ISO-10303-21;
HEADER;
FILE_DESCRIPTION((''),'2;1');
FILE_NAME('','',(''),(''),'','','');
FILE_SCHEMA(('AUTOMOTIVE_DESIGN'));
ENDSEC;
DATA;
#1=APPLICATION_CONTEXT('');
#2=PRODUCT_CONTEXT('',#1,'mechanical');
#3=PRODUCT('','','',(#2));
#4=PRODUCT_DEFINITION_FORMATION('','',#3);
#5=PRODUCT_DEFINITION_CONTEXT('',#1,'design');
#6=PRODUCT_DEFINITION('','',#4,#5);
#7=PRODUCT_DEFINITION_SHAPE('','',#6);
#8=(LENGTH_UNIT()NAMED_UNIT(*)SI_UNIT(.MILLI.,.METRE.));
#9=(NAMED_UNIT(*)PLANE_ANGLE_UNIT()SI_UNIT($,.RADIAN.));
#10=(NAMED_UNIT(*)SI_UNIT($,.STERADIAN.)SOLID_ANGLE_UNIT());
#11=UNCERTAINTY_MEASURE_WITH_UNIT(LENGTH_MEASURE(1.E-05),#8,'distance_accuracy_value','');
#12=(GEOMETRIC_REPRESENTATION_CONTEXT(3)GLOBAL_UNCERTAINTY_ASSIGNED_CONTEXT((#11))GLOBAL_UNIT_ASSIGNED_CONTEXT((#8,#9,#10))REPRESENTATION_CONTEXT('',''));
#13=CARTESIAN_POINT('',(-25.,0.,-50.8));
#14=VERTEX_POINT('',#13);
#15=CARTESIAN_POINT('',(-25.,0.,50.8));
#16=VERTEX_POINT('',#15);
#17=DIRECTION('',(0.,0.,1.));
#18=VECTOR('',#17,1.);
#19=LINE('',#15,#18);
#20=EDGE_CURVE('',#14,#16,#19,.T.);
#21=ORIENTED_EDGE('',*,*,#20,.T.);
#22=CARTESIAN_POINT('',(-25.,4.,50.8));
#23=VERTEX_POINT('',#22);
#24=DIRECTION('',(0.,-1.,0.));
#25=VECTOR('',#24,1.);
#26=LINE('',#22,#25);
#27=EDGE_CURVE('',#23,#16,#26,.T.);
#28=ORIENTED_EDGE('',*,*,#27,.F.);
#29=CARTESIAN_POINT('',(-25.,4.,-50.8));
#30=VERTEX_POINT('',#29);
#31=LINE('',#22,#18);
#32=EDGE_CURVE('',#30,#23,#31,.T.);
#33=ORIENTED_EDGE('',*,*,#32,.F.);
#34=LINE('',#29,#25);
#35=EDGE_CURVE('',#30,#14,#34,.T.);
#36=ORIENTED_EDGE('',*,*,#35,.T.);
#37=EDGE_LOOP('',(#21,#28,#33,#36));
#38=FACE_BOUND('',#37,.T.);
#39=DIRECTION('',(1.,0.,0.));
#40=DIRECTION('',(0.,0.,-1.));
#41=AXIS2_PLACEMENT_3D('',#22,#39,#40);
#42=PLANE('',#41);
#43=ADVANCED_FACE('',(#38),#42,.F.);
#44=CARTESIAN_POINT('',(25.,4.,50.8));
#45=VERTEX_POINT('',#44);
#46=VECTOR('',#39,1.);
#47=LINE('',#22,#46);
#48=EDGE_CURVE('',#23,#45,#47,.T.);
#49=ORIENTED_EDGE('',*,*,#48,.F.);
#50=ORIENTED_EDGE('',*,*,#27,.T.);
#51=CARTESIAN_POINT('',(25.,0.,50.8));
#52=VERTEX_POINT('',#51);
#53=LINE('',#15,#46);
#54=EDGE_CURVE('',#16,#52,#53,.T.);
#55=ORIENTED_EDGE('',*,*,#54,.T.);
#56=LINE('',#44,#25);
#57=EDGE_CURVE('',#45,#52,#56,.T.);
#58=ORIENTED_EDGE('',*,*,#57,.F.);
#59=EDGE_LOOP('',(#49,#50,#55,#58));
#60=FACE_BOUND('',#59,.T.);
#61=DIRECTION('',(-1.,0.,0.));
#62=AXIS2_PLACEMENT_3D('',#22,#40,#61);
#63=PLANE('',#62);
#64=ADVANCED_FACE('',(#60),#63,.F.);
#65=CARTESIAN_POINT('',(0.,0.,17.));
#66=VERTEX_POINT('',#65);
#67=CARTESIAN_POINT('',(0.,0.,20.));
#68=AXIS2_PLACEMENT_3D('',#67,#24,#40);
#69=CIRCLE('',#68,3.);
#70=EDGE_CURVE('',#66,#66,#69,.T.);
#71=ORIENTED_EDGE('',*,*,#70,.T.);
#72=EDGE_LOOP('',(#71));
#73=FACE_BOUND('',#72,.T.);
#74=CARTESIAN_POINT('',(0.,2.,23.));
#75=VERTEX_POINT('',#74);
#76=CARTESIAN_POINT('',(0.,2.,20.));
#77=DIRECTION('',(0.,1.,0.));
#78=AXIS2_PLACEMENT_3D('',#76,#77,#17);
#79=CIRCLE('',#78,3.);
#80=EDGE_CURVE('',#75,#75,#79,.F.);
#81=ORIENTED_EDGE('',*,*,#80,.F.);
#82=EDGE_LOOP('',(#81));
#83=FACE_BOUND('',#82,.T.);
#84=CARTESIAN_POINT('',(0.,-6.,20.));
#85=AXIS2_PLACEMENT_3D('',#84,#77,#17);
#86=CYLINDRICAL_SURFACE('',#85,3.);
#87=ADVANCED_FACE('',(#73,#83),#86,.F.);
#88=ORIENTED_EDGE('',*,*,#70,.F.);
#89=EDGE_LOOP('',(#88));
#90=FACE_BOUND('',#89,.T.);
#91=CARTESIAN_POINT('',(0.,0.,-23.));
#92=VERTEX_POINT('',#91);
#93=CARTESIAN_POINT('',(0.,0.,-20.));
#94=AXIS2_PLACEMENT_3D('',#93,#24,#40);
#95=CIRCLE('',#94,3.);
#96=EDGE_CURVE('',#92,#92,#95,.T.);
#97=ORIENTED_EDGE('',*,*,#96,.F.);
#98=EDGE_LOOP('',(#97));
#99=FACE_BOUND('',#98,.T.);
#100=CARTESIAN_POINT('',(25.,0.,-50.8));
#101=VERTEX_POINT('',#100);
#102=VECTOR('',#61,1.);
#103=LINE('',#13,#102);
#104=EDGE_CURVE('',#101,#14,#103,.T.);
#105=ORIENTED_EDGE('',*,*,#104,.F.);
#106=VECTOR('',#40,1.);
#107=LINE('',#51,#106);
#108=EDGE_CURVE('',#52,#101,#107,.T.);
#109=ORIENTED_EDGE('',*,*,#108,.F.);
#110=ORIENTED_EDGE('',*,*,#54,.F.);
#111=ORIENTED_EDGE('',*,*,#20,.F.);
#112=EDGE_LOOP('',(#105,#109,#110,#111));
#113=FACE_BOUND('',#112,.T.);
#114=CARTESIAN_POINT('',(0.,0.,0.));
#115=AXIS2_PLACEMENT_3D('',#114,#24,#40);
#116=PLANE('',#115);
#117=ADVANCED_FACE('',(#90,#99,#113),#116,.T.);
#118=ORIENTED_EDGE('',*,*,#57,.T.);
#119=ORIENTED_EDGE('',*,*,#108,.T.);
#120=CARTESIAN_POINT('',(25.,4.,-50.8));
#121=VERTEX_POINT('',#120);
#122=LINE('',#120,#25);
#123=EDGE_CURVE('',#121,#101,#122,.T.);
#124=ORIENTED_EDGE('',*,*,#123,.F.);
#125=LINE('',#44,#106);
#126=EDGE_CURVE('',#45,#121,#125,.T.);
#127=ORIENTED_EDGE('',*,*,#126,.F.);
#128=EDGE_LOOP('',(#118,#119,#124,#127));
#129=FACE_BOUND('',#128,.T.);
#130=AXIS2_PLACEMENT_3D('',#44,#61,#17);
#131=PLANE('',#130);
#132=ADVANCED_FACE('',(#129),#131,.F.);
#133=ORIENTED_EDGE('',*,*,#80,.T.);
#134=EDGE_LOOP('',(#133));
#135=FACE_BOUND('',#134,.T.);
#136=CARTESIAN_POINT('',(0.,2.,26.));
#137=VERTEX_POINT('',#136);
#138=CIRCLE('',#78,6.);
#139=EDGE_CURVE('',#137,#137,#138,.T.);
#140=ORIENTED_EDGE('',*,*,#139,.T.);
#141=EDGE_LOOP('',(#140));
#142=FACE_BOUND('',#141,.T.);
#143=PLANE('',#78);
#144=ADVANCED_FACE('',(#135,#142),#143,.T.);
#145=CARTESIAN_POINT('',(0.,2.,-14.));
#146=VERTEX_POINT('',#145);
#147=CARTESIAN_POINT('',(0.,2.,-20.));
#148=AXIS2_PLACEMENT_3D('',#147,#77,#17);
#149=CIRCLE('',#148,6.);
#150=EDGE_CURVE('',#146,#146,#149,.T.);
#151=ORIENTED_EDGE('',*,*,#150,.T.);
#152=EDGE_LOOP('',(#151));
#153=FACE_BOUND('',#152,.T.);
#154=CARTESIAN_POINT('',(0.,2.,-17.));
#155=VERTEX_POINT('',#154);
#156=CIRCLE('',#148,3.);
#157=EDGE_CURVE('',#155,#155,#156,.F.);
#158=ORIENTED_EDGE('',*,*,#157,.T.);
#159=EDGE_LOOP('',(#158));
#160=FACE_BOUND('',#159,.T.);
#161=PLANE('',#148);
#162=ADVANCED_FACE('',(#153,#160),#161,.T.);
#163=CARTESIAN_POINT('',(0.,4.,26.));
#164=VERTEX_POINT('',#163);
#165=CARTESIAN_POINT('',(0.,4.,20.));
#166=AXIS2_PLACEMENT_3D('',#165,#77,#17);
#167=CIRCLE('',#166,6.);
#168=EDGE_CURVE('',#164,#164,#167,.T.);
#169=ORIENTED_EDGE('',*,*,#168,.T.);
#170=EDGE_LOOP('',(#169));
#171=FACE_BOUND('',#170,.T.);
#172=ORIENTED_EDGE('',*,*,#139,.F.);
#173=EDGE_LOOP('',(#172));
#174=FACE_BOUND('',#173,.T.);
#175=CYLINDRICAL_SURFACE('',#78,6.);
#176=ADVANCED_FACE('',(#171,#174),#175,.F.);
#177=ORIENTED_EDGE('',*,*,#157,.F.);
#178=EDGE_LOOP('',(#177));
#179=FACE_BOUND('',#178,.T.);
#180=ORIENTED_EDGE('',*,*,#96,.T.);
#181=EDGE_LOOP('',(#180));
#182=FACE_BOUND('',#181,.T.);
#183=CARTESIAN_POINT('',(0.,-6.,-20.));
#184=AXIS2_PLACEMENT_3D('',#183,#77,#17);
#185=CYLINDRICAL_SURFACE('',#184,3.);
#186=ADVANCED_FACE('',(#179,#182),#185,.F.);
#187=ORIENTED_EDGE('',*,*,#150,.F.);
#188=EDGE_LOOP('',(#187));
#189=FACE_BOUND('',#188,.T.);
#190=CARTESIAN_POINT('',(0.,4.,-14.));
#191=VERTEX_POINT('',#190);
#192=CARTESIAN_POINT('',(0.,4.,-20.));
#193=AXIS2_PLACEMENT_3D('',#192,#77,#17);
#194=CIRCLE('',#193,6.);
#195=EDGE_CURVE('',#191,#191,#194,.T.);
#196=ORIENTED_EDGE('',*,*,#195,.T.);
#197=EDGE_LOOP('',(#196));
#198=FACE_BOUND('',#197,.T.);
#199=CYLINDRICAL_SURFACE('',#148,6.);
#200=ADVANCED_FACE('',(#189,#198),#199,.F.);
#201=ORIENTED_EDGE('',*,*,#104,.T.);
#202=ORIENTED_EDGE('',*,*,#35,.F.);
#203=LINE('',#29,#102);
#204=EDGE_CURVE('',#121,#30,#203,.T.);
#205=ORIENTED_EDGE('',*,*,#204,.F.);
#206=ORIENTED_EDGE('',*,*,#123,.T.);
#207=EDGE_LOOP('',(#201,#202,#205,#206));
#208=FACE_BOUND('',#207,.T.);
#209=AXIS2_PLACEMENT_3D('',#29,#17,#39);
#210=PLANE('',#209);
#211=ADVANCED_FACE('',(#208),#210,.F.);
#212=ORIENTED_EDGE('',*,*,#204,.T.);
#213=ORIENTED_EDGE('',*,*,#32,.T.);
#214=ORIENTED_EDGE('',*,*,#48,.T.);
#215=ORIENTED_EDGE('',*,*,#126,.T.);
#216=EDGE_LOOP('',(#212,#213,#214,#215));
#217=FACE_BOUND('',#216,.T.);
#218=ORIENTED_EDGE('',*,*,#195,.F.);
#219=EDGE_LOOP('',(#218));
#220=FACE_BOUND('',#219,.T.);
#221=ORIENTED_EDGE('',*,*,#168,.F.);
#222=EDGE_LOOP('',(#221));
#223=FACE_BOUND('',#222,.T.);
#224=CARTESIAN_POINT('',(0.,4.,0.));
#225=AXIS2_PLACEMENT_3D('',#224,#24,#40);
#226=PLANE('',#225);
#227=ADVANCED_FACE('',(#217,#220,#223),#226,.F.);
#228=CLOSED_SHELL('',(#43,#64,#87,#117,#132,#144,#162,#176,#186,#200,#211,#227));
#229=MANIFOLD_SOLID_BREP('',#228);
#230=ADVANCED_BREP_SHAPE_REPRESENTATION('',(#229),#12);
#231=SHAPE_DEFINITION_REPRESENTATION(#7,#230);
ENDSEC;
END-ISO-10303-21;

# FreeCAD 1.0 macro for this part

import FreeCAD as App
import Part
import Sketcher
from FreeCAD import Vector
Q = App.Units.Quantity

doc = App.newDocument("Part")
body = doc.addObject("PartDesign::Body", "Body")

# Sketch on XZ plane
sketch1 = body.newObject("Sketcher::SketchObject", "Sketch")
sketch1.AttachmentSupport = (doc.getObject("XZ_Plane"), [""])
sketch1.MapMode = "FlatFace"
sketch1.addGeometry([
    Part.LineSegment(Vector(-25, -51, 0), Vector(-25, 51, 0)),
    Part.LineSegment(Vector(-25, 51, 0), Vector(25, 51, 0)),
    Part.LineSegment(Vector(25, 51, 0), Vector(25, -51, 0)),
    Part.LineSegment(Vector(25, -51, 0), Vector(-25, -51, 0)),
], False)
sketch1.addConstraint([
    Sketcher.Constraint("Coincident", 0, 2, 1, 1),
    Sketcher.Constraint("Coincident", 1, 2, 2, 1),
    Sketcher.Constraint("Coincident", 2, 2, 3, 1),
    Sketcher.Constraint("Coincident", 3, 2, 0, 1),
    Sketcher.Constraint("Vertical", 0),
    Sketcher.Constraint("Horizontal", 1),
    Sketcher.Constraint("Vertical", 2),
    Sketcher.Constraint("Horizontal", 3),
    Sketcher.Constraint("Symmetric", 0, 2, 2, 2, -1, 1),
    Sketcher.Constraint("DistanceX", 1, 1, 1, 2, Q("50 mm")),
    Sketcher.Constraint("DistanceY", 0, 1, 0, 2, Q("101.6 mm")),
])
pad1 = body.newObject("PartDesign::Pad", "Pad")
pad1.Profile = sketch1
pad1.Length = 4
pad1.Reversed = True

# Sketch on XZ plane
sketch2 = body.newObject("Sketcher::SketchObject", "Sketch001")
sketch2.AttachmentSupport = (doc.getObject("XZ_Plane"), [""])
sketch2.MapMode = "FlatFace"
sketch2.AttachmentOffset = App.Placement(Vector(0, 0, -4), App.Rotation())
sketch2.addGeometry([
    Part.Circle(Vector(0, -20, 0), Vector(0, 0, 1), 3),
    Part.Circle(Vector(0, 20, 0), Vector(0, 0, 1), 3),
], False)
sketch2.addConstraint([
    Sketcher.Constraint("Equal", 0, 1),
    Sketcher.Constraint("Symmetric", 0, 3, 1, 3, -1, 1),
    Sketcher.Constraint("PointOnObject", 0, 3, -2),
    Sketcher.Constraint("Diameter", 0, Q("6 mm")),
    Sketcher.Constraint("DistanceY", 0, 3, -1, 1, Q("20 mm")),
])
pocket1 = body.newObject("PartDesign::Pocket", "Pocket")
pocket1.Profile = sketch2
pocket1.Length = 10
pocket1.Reversed = True

# Sketch on XZ plane
sketch3 = body.newObject("Sketcher::SketchObject", "Sketch002")
sketch3.AttachmentSupport = (doc.getObject("XZ_Plane"), [""])
sketch3.MapMode = "FlatFace"
sketch3.AttachmentOffset = App.Placement(Vector(0, 0, -4), App.Rotation())
sketch3.addGeometry([
    Part.Circle(Vector(0, -20, 0), Vector(0, 0, 1), 6),
    Part.Circle(Vector(0, 20, 0), Vector(0, 0, 1), 6),
], False)
sketch3.addConstraint([
    Sketcher.Constraint("Equal", 0, 1),
    Sketcher.Constraint("Symmetric", 0, 3, 1, 3, -1, 1),
    Sketcher.Constraint("PointOnObject", 0, 3, -2),
    Sketcher.Constraint("Diameter", 0, Q("12 mm")),
    Sketcher.Constraint("DistanceY", 0, 3, -1, 1, Q("20 mm")),
])
pocket2 = body.newObject("PartDesign::Pocket", "Pocket001")
pocket2.Profile = sketch3
pocket2.Length = 2
pocket2.Reversed = True

doc.recompute()
